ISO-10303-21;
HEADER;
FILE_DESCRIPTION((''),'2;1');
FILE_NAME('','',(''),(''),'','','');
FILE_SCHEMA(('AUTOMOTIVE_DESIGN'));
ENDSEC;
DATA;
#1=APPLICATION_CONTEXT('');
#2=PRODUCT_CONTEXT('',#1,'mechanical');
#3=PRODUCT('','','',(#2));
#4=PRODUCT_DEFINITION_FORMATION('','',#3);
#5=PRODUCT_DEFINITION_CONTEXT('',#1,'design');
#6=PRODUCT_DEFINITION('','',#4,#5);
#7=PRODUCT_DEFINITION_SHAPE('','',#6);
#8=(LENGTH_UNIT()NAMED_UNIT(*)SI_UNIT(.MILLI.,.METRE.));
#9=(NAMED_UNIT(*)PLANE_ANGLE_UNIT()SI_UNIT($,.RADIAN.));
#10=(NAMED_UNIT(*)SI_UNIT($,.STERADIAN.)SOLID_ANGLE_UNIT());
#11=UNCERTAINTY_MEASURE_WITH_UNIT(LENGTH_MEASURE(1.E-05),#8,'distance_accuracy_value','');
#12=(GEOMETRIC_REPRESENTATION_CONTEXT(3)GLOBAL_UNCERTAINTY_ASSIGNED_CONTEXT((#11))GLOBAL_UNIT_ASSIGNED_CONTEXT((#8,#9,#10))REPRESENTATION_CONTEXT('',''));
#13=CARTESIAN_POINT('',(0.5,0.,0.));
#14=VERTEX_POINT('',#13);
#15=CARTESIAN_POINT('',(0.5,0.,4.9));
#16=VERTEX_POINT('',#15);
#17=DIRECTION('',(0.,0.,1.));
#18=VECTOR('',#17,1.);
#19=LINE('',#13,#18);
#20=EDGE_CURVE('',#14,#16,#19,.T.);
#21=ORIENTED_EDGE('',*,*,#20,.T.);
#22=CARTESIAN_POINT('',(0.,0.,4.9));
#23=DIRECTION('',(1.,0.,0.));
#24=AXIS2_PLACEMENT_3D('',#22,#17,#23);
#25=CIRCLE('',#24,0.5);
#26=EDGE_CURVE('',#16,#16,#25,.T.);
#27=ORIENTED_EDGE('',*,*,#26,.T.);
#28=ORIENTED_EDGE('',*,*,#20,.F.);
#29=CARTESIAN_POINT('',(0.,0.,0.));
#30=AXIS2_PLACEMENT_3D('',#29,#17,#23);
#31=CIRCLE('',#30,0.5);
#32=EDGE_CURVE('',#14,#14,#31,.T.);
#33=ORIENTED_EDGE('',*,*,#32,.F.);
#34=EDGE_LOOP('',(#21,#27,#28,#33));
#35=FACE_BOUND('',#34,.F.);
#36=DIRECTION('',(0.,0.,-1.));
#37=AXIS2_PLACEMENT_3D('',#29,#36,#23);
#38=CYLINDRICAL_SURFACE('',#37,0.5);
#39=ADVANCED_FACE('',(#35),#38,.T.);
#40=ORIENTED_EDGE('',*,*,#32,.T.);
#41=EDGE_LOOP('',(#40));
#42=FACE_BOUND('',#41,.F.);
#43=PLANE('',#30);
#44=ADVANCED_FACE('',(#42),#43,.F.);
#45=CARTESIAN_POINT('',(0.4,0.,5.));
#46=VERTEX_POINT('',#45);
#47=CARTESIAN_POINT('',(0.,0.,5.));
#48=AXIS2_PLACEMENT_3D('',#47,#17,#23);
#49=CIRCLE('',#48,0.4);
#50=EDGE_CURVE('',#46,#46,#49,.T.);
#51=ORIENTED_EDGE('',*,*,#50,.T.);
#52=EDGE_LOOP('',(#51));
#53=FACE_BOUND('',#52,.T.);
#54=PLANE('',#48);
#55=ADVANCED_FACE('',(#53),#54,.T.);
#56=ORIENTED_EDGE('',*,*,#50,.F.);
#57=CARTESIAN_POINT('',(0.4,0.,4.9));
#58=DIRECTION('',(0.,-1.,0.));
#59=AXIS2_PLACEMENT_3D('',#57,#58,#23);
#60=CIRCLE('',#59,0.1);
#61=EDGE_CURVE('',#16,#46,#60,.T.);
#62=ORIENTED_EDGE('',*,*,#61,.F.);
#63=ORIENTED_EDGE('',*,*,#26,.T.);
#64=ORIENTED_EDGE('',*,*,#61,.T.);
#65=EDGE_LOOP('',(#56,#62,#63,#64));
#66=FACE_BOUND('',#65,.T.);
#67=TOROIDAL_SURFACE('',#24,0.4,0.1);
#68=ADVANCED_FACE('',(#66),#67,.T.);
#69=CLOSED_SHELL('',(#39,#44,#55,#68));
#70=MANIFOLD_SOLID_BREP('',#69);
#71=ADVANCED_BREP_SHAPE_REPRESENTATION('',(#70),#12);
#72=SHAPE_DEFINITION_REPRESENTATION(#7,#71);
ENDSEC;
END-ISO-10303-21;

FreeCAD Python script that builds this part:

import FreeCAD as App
import Part
import Sketcher
from FreeCAD import Vector
Q = App.Units.Quantity


def edges_at(feature, points):
    """Names of the edges that pass closest to the given points."""
    edges = feature.Shape.Edges
    near = lambda p: min(range(len(edges)), key=lambda i: edges[i].distToShape(Part.Vertex(*p))[0])
    return sorted({f"Edge{near(p) + 1}" for p in points})

doc = App.newDocument("Part")
body = doc.addObject("PartDesign::Body", "Body")

sketch1 = body.newObject("Sketcher::SketchObject", "Sketch")
sketch1.AttachmentSupport = (doc.getObject("XY_Plane"), [""])
sketch1.MapMode = "FlatFace"
sketch1.addGeometry(Part.Circle(Vector(0, 0, 0), Vector(0, 0, 1), 0.5), False)
sketch1.addConstraint([
    Sketcher.Constraint("Coincident", 0, 3, -1, 1),
    Sketcher.Constraint("Diameter", 0, Q("1 mm")),
])
pad1 = body.newObject("PartDesign::Pad", "Pad")
pad1.Profile = sketch1
pad1.Length = 5
doc.recompute()

fillet = body.newObject("PartDesign::Fillet", "Fillet")
fillet.Base = (pad1, edges_at(pad1, [(-0.5, 0, 5)]))
fillet.Radius = 0.1

doc.recompute()
